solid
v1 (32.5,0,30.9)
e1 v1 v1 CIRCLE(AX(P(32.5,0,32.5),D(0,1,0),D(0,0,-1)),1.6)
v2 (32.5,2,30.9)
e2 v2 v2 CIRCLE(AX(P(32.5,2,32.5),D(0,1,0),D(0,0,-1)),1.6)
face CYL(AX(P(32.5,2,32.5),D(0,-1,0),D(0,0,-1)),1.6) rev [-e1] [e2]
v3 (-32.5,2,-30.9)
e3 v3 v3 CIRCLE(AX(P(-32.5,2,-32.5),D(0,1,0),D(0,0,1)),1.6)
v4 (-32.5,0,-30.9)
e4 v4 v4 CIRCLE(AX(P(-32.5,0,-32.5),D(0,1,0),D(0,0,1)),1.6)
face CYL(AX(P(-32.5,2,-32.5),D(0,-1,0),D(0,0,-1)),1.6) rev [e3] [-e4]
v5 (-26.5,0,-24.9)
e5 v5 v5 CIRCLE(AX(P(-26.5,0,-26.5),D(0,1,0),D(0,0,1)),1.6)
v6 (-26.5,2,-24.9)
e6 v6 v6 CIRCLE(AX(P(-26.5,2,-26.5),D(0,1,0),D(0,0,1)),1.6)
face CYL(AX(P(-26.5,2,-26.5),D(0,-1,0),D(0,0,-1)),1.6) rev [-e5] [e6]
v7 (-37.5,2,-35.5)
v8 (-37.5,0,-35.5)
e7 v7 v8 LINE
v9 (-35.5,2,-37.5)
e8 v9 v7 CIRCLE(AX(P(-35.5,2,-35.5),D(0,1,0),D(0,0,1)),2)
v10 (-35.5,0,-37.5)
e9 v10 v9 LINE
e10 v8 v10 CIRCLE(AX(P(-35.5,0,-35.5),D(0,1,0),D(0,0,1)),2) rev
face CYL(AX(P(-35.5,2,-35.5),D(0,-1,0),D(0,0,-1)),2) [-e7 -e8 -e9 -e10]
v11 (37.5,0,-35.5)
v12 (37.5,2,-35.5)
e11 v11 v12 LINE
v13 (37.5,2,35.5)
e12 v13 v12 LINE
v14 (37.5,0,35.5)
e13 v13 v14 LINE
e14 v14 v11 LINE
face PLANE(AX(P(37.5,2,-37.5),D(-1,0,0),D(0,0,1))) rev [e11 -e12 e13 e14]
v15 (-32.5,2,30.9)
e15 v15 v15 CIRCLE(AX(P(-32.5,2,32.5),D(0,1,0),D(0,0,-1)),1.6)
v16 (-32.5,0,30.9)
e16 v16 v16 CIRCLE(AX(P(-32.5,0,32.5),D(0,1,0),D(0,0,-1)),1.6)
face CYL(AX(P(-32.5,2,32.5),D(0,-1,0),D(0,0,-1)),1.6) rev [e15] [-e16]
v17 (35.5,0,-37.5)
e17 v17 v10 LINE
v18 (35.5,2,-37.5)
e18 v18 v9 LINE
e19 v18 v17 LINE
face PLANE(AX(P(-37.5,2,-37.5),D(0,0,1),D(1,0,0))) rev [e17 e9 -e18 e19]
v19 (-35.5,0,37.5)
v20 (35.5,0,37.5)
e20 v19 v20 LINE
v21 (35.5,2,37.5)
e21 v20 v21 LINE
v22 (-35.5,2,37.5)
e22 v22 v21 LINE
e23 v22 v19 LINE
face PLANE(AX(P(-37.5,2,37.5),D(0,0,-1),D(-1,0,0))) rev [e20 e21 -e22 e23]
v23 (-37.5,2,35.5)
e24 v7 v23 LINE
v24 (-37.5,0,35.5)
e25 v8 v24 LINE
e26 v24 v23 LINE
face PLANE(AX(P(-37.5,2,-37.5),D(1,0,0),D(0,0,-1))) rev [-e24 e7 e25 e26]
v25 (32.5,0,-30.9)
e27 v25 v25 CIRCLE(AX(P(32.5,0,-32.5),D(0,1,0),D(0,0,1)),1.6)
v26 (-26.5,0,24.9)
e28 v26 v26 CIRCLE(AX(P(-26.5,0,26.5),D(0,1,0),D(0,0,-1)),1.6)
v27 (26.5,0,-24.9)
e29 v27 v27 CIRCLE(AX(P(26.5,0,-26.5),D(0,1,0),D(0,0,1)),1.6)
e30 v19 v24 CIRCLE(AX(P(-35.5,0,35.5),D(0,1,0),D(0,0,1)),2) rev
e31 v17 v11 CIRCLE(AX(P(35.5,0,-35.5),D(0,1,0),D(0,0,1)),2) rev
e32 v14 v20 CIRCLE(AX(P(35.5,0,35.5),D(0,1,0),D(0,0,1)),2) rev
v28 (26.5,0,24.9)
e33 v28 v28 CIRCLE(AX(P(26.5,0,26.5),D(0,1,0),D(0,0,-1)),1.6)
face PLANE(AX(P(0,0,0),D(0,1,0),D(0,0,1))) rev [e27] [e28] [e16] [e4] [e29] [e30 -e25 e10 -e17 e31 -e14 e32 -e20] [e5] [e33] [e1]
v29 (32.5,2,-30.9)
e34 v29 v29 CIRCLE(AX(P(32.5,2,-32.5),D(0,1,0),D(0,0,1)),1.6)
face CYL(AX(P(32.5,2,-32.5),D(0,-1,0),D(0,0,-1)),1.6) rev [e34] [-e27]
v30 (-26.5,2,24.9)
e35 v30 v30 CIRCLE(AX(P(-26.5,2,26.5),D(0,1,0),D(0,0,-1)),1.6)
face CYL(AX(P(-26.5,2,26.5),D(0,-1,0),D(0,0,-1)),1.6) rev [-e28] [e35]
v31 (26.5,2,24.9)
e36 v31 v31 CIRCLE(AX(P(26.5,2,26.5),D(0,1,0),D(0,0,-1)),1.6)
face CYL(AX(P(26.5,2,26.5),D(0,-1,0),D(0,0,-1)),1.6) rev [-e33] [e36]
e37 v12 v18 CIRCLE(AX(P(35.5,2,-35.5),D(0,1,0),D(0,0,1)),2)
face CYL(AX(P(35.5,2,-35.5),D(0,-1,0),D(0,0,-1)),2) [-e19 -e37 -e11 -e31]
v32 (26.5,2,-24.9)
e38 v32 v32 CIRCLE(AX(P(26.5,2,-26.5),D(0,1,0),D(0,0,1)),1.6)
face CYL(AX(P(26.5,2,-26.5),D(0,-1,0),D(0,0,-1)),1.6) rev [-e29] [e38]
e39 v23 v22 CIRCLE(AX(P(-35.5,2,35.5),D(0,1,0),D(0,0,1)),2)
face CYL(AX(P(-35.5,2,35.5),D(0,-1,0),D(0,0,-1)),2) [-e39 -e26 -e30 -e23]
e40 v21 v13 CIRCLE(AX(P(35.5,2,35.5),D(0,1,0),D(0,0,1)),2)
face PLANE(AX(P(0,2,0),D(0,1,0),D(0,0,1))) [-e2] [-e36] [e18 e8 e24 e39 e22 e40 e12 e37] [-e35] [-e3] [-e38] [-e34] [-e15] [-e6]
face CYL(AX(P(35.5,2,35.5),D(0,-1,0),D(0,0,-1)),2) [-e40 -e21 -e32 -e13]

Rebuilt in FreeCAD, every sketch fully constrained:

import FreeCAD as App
import Part
import Sketcher
from FreeCAD import Vector
Q = App.Units.Quantity


def edges_at(feature, points):
    """Names of the edges that pass closest to the given points."""
    edges = feature.Shape.Edges
    near = lambda p: min(range(len(edges)), key=lambda i: edges[i].distToShape(Part.Vertex(*p))[0])
    return sorted({f"Edge{near(p) + 1}" for p in points})


def add_polygon(sketch, points):
    """Adds a closed chain of lines whose ends are joined by coincident constraints."""
    first, n = sketch.GeometryCount, len(points)
    for a, b in zip(points, points[1:] + points[:1]):
        sketch.addGeometry(Part.LineSegment(App.Vector(*a, 0), App.Vector(*b, 0)), False)
    for i in range(n):
        sketch.addConstraint(Sketcher.Constraint("Coincident", first + i, 2, first + (i + 1) % n, 1))

doc = App.newDocument("Part")
params = doc.addObject("Spreadsheet::Sheet", "Params")
for row, (alias, value) in enumerate([
    ("sketch1_diameter", "3.2 mm"),
    ("sketch1_width", "75 mm"),
    ("pad1_length", "2 mm"),
    ("fillet_radius", "2 mm"),
], start=1):
    params.set(f"A{row}", alias)
    params.set(f"B{row}", "=" + value)
    params.setAlias(f"B{row}", alias)

body = doc.addObject("PartDesign::Body", "Body")

# Sketch on XZ plane
sketch1 = body.newObject("Sketcher::SketchObject", "Sketch")
sketch1.AttachmentSupport = (doc.getObject("XZ_Plane"), [""])
sketch1.MapMode = "FlatFace"
add_polygon(sketch1, [(-37.5, -37.5), (-37.5, 37.5), (37.5, 37.5), (37.5, -37.5)])  # lines 0-3
sketch1.addGeometry(Part.Circle(Vector(-32.5, 32.5, 0), Vector(0, 0, 1), 1.6), False)  # 4
sketch1.addGeometry(Part.Circle(Vector(-26.5, 26.5, 0), Vector(0, 0, 1), 1.6), False)  # 5
sketch1.addGeometry(Part.Circle(Vector(32.5, 32.5, 0), Vector(0, 0, 1), 1.6), False)  # 6
sketch1.addGeometry(Part.Circle(Vector(26.5, 26.5, 0), Vector(0, 0, 1), 1.6), False)  # 7
sketch1.addGeometry(Part.Circle(Vector(-26.5, -26.5, 0), Vector(0, 0, 1), 1.6), False)  # 8
sketch1.addGeometry(Part.Circle(Vector(-32.5, -32.5, 0), Vector(0, 0, 1), 1.6), False)  # 9
sketch1.addGeometry(Part.Circle(Vector(26.5, -26.5, 0), Vector(0, 0, 1), 1.6), False)  # 10
sketch1.addGeometry(Part.Circle(Vector(32.5, -32.5, 0), Vector(0, 0, 1), 1.6), False)  # 11
sketch1.addConstraint(Sketcher.Constraint("Vertical", 0))
sketch1.addConstraint(Sketcher.Constraint("Horizontal", 1))
sketch1.addConstraint(Sketcher.Constraint("Vertical", 2))
sketch1.addConstraint(Sketcher.Constraint("Horizontal", 3))
sketch1.addConstraint(Sketcher.Constraint("Equal", 4, 5))
sketch1.addConstraint(Sketcher.Constraint("Equal", 5, 6))
sketch1.addConstraint(Sketcher.Constraint("Equal", 6, 7))
sketch1.addConstraint(Sketcher.Constraint("Equal", 7, 8))
sketch1.addConstraint(Sketcher.Constraint("Equal", 8, 9))
sketch1.addConstraint(Sketcher.Constraint("Equal", 9, 10))
sketch1.addConstraint(Sketcher.Constraint("Equal", 10, 11))
sketch1.addConstraint(Sketcher.Constraint("Symmetric", 7, 3, 8, 3, -1, 1))
sketch1.addConstraint(Sketcher.Constraint("Symmetric", 6, 3, 9, 3, -1, 1))
sketch1.addConstraint(Sketcher.Constraint("Symmetric", 5, 3, 10, 3, -1, 1))
sketch1.addConstraint(Sketcher.Constraint("Symmetric", 4, 3, 11, 3, -1, 1))
sketch1.addConstraint(Sketcher.Constraint("Symmetric", 0, 2, 2, 2, -1, 1))
sketch1.addConstraint(Sketcher.Constraint("Symmetric", 4, 3, 6, 3, -2))
sketch1.addConstraint(Sketcher.Constraint("Symmetric", 5, 3, 7, 3, -2))
sketch1.addConstraint(Sketcher.Constraint("Equal", 3, 0))
sketch1.addConstraint(Sketcher.Constraint("Diameter", 4, Q("3.2 mm")))
sketch1.addConstraint(Sketcher.Constraint("DistanceX", 1, 1, 1, 2, Q("75 mm")))
sketch1.addConstraint(Sketcher.Constraint("DistanceX", 4, 3, 5, 3, Q("6 mm")))
sketch1.addConstraint(Sketcher.Constraint("DistanceY", 5, 3, 4, 3, Q("6 mm")))
sketch1.addConstraint(Sketcher.Constraint("DistanceX", 5, 3, 6, 3, Q("59 mm")))
sketch1.addConstraint(Sketcher.Constraint("DistanceY", 8, 3, 5, 3, Q("53 mm")))
sketch1.setExpression("Constraints[23]", "Params.sketch1_diameter")
sketch1.setExpression("Constraints[24]", "Params.sketch1_width")
pad1 = body.newObject("PartDesign::Pad", "Pad")
pad1.Profile = sketch1
pad1.setExpression("Length", "Params.pad1_length")
pad1.Reversed = True
doc.recompute()

fillet = body.newObject("PartDesign::Fillet", "Fillet")
fillet.Base = (pad1, edges_at(pad1, [
    (37.5, 1, 37.5),
    (-37.5, 1, 37.5),
    (-37.5, 1, -37.5),
    (37.5, 1, -37.5),
]))
fillet.setExpression("Radius", "Params.fillet_radius")

doc.recompute()
